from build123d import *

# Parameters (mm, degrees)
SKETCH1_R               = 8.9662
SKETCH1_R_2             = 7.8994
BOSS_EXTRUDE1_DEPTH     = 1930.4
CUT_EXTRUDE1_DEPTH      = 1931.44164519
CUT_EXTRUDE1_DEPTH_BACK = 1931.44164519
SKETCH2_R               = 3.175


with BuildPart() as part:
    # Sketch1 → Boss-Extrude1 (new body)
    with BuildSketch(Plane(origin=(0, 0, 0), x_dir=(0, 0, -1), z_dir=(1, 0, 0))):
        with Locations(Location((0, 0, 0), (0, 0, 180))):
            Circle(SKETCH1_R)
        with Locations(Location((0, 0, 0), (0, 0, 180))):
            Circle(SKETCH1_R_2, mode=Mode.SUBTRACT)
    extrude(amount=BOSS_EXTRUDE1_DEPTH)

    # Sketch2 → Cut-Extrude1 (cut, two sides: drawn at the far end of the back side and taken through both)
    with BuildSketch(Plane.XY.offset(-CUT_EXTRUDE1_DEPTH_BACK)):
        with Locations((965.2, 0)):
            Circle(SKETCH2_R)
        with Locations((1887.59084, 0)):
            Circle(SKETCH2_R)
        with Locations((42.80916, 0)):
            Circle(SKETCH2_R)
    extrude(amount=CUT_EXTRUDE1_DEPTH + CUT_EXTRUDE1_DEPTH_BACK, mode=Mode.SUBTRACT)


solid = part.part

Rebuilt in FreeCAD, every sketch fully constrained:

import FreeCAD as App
import Part
import Sketcher
Q = App.Units.Quantity

doc = App.newDocument("Part")
params = doc.addObject("Spreadsheet::Sheet", "Params")
for row, (alias, value) in enumerate([
    ("sketch1_diameter", "0.706 in"),
    ("sketch1_diameter2", "0.622 in"),
    ("pad1_length", "76 in"),
    ("sketch2_diameter", "0.25 in"),
], start=1):
    params.set(f"A{row}", alias)
    params.set(f"B{row}", "=" + value)
    params.setAlias(f"B{row}", alias)

body = doc.addObject("PartDesign::Body", "Body")

sketch1 = body.newObject("Sketcher::SketchObject", "Sketch")
sketch1.AttachmentSupport = (doc.getObject("YZ_Plane"), [""])
sketch1.MapMode = "FlatFace"
sketch1.addGeometry([
    Part.Circle(App.Vector(0, 0, 0), App.Vector(0, 0, 1), 9),
    Part.Circle(App.Vector(0, 0, 0), App.Vector(0, 0, 1), 8),
], False)
sketch1.addConstraint([
    Sketcher.Constraint("Coincident", 0, 3, -1, 1),
    Sketcher.Constraint("Coincident", 1, 3, -1, 1),
    Sketcher.Constraint("Diameter", 0, Q("0.706 in")),
    Sketcher.Constraint("Diameter", 1, Q("0.622 in")),
])
sketch1.setExpression("Constraints[2]", "Params.sketch1_diameter")
sketch1.setExpression("Constraints[3]", "Params.sketch1_diameter2")
pad1 = body.newObject("PartDesign::Pad", "Pad")
pad1.Profile = sketch1
pad1.setExpression("Length", "Params.pad1_length")

sketch2 = body.newObject("Sketcher::SketchObject", "Sketch001")
sketch2.AttachmentSupport = (doc.getObject("XY_Plane"), [""])
sketch2.MapMode = "FlatFace"
sketch2.addGeometry([
    Part.Circle(App.Vector(965.2, 0, 0), App.Vector(0, 0, 1), 3.2),
    Part.Circle(App.Vector(1887.6, 0, 0), App.Vector(0, 0, 1), 3.2),
    Part.Circle(App.Vector(42.8, 0, 0), App.Vector(0, 0, 1), 3.2),
], False)
sketch2.addConstraint([
    Sketcher.Constraint("Equal", 0, 1),
    Sketcher.Constraint("Equal", 1, 2),
    Sketcher.Constraint("PointOnObject", 0, 3, -1),
    Sketcher.Constraint("PointOnObject", 1, 3, -1),
    Sketcher.Constraint("PointOnObject", 2, 3, -1),
    Sketcher.Constraint("Diameter", 0, Q("0.25 in")),
    Sketcher.Constraint("DistanceX", -1, 1, 0, 3, Q("38 in")),
    Sketcher.Constraint("DistanceX", -1, 1, 1, 3, Q("74.3146 in")),
    Sketcher.Constraint("DistanceX", -1, 1, 2, 3, Q("1.6854 in")),
])
sketch2.setExpression("Constraints[5]", "Params.sketch2_diameter")
pocket1 = body.newObject("PartDesign::Pocket", "Pocket")
pocket1.Profile = sketch2
pocket1.Type = "ThroughAll"
pocket1.Midplane = True

doc.recompute()
